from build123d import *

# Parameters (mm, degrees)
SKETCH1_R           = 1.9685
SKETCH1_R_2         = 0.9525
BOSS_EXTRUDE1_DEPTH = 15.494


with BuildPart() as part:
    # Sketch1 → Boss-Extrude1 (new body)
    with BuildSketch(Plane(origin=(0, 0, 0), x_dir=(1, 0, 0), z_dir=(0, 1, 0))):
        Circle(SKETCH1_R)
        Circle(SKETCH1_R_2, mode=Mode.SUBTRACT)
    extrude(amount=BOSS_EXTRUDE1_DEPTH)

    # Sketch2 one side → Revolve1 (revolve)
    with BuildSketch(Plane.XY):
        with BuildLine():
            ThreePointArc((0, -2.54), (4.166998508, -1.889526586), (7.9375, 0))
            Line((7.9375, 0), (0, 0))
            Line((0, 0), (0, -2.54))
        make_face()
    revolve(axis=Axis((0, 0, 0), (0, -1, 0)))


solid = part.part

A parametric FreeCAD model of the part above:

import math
import FreeCAD as App
import Part
import Sketcher

V = App.Vector
Q = App.Units.Quantity

doc = App.newDocument("Part")
body = doc.addObject("PartDesign::Body", "Body")

# Sketch on XZ plane
sketch1 = body.newObject("Sketcher::SketchObject", "Sketch")
sketch1.AttachmentSupport = (doc.getObject("XZ_Plane"), [""])
sketch1.MapMode = "FlatFace"
sketch1.addGeometry([
    Part.Circle(V(0, 0, 0), V(0, 0, 1), 2),
    Part.Circle(V(0, 0, 0), V(0, 0, 1), 1),
], False)
sketch1.addConstraint([
    Sketcher.Constraint("Coincident", 0, 3, -1, 1),
    Sketcher.Constraint("Coincident", 1, 3, -1, 1),
    Sketcher.Constraint("Diameter", 0, Q("0.155 in")),
    Sketcher.Constraint("Diameter", 1, Q("0.075 in")),
])
pad1 = body.newObject("PartDesign::Pad", "Pad")
pad1.Profile = sketch1
pad1.Length = Q("0.61 in")
pad1.Reversed = True

# Sketch on XY plane
sketch2 = body.newObject("Sketcher::SketchObject", "Sketch001")
sketch2.AttachmentSupport = (doc.getObject("XY_Plane"), [""])
sketch2.MapMode = "FlatFace"
sketch2.addGeometry([
    Part.ArcOfCircle(Part.Circle(V(0, 11.1, 0), V(0, 0, 1), 13.7), math.radians(-90), math.radians(-55)),
    Part.LineSegment(V(7.9, 0, 0), V(0, 0, 0)),
    Part.LineSegment(V(0, 0, 0), V(0, -2.5, 0)),
], False)
sketch2.addConstraint([
    Sketcher.Constraint("Coincident", 0, 2, 1, 1),
    Sketcher.Constraint("Coincident", 1, 2, 2, 1),
    Sketcher.Constraint("Coincident", 2, 2, 0, 1),
    Sketcher.Constraint("Horizontal", 1),
    Sketcher.Constraint("Vertical", 2),
    Sketcher.Constraint("Coincident", 1, 2, -1, 1),
    Sketcher.Constraint("PointOnObject", 0, 3, -2),
    Sketcher.Constraint("DistanceY", 2, 2, 2, 1, Q("0.1 in")),
    Sketcher.Constraint("DistanceX", 1, 2, 1, 1, Q("0.3125 in")),
])
revolution = body.newObject("PartDesign::Revolution", "Revolution")
revolution.Profile = sketch2
revolution.ReferenceAxis = (sketch2, ["V_Axis"])
revolution.Angle = 360

doc.recompute()
